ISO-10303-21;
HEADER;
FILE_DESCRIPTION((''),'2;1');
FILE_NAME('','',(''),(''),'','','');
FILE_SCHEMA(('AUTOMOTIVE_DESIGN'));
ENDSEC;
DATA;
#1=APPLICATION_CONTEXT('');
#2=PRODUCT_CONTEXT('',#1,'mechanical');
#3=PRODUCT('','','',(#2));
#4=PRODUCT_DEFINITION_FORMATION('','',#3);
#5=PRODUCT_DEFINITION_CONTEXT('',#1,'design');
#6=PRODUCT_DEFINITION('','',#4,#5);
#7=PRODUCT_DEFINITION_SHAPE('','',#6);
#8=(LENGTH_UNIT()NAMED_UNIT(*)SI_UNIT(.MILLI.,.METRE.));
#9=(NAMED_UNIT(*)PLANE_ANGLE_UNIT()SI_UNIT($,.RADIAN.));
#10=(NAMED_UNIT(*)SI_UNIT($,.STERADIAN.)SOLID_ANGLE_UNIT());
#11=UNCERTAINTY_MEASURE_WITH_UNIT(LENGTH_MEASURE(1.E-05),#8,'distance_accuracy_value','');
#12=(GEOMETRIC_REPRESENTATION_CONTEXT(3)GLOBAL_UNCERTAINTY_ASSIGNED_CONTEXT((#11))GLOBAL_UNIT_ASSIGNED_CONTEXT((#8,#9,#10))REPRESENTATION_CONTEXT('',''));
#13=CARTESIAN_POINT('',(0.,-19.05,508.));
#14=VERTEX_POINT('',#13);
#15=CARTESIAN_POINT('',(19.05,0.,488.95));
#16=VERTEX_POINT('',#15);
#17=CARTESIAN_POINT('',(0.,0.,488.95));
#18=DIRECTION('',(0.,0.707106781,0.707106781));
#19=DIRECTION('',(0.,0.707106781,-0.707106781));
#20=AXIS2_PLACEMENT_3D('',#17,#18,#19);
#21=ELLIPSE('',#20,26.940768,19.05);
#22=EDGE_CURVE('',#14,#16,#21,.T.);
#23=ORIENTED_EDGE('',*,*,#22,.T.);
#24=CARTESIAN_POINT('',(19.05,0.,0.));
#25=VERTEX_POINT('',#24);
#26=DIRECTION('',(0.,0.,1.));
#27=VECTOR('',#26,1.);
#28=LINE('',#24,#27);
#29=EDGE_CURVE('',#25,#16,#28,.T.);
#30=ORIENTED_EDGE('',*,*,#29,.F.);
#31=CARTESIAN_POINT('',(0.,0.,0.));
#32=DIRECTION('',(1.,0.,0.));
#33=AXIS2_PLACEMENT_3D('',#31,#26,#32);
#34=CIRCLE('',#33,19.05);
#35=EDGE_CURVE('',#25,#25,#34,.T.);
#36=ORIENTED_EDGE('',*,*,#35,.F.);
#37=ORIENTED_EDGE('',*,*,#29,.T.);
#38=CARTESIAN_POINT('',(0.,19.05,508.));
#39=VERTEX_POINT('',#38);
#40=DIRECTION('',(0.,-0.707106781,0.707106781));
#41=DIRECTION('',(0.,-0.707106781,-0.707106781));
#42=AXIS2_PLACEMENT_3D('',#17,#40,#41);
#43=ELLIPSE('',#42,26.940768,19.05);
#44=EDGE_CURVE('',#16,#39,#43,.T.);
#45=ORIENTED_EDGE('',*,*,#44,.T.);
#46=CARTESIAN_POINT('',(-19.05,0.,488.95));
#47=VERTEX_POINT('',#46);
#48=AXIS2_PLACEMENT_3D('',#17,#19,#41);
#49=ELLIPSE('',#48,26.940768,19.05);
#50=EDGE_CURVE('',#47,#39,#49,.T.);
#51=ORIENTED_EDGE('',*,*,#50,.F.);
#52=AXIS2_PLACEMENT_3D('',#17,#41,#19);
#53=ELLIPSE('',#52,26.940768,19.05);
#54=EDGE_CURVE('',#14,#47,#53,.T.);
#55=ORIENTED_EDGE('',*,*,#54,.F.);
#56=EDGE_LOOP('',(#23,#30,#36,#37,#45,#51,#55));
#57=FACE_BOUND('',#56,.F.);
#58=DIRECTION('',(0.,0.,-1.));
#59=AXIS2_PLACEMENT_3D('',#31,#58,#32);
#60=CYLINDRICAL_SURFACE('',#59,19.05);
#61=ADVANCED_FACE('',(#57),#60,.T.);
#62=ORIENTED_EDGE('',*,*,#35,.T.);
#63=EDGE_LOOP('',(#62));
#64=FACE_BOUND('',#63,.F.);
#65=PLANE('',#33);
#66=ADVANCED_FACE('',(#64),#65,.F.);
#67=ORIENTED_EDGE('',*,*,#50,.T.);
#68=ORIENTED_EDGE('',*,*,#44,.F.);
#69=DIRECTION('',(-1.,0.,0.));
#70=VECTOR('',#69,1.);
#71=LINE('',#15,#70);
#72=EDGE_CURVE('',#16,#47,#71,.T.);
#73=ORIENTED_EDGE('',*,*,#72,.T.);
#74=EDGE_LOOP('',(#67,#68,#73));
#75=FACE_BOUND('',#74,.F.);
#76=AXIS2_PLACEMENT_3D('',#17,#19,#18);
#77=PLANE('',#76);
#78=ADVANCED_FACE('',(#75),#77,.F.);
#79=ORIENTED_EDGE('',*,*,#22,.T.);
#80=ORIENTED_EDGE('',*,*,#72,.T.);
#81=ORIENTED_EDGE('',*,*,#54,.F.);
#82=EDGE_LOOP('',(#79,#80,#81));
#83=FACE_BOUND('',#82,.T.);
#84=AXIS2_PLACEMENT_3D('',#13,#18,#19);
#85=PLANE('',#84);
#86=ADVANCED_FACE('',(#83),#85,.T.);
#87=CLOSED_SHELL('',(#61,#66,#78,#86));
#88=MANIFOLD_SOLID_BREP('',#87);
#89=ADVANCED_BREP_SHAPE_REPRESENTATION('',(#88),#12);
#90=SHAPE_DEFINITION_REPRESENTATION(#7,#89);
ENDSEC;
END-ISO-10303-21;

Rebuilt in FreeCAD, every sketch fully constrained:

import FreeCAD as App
import Part
import Sketcher
from FreeCAD import Vector
Q = App.Units.Quantity

doc = App.newDocument("Part")
body = doc.addObject("PartDesign::Body", "Body")

# Sketch on XY plane
sketch1 = body.newObject("Sketcher::SketchObject", "Sketch")
sketch1.AttachmentSupport = (doc.getObject("XY_Plane"), [""])
sketch1.MapMode = "FlatFace"
sketch1.addGeometry(Part.Circle(Vector(0, 0, 0), Vector(0, 0, 1), 19), False)
sketch1.addConstraint([
    Sketcher.Constraint("Coincident", 0, 3, -1, 1),
    Sketcher.Constraint("Diameter", 0, Q("1.5 in")),
])
pad1 = body.newObject("PartDesign::Pad", "Pad")
pad1.Profile = sketch1
pad1.Length = Q("20 in")

# Sketch on YZ plane
sketch2 = body.newObject("Sketcher::SketchObject", "Sketch001")
sketch2.AttachmentSupport = (doc.getObject("YZ_Plane"), [""])
sketch2.MapMode = "FlatFace"
sketch2.addGeometry([
    Part.LineSegment(Vector(19, 508, 0), Vector(-19, 508, 0)),
    Part.LineSegment(Vector(-19, 508, 0), Vector(0, 489, 0)),
    Part.LineSegment(Vector(0, 489, 0), Vector(19, 508, 0)),
], False)
sketch2.addConstraint([
    Sketcher.Constraint("Coincident", 0, 2, 1, 1),
    Sketcher.Constraint("Coincident", 1, 2, 2, 1),
    Sketcher.Constraint("Coincident", 2, 2, 0, 1),
    Sketcher.Constraint("Horizontal", 0),
    Sketcher.Constraint("PointOnObject", 1, 2, -2),
    Sketcher.Constraint("Perpendicular", 1, 2),
    Sketcher.Constraint("Equal", 1, 2),
    Sketcher.Constraint("DistanceX", 0, 2, 0, 1, Q("1.5 in")),
    Sketcher.Constraint("DistanceY", -1, 1, 0, 2, Q("20 in")),
])
pocket1 = body.newObject("PartDesign::Pocket", "Pocket")
pocket1.Profile = sketch2
pocket1.Type = "ThroughAll"
pocket1.Midplane = True

doc.recompute()
